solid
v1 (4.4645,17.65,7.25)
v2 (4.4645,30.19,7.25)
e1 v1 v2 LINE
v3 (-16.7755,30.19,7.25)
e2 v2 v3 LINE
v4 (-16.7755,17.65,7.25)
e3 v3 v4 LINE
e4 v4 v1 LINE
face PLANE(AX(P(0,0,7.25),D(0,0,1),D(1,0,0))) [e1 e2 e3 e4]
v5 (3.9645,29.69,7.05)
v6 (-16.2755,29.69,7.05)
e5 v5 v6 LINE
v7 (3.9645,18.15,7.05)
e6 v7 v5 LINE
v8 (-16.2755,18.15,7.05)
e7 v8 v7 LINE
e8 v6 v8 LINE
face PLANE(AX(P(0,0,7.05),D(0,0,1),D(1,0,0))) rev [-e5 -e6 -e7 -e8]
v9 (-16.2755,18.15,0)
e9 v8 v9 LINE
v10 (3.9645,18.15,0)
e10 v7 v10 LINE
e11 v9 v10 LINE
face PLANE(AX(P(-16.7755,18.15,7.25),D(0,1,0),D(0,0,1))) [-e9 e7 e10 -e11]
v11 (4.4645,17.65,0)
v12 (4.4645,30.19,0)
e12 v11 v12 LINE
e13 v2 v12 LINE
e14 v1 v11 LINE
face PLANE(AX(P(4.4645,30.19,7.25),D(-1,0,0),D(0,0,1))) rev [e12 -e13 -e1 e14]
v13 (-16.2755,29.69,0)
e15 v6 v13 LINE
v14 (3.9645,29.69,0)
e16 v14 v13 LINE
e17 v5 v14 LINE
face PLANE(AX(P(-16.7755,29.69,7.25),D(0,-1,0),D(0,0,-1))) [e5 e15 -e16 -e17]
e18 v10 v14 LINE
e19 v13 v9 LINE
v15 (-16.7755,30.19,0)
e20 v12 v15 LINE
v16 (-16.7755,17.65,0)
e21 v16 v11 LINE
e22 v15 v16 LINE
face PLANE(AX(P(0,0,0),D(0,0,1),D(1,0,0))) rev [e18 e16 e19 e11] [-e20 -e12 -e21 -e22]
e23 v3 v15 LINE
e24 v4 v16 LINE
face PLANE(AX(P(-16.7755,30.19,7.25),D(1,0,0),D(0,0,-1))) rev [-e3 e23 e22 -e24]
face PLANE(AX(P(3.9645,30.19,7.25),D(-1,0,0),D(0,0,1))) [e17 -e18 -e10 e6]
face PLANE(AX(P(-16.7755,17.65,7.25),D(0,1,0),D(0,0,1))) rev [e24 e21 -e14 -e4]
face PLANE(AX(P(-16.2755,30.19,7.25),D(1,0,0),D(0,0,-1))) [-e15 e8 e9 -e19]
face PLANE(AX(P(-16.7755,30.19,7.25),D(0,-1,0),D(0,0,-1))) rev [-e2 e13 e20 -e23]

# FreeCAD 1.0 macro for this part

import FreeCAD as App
import Part
import Sketcher
Q = App.Units.Quantity


def faces_at(feature, points):
    """Names of the faces that lie closest to the given points."""
    faces = feature.Shape.Faces
    near = lambda p: min(range(len(faces)), key=lambda i: faces[i].distToShape(Part.Vertex(*p))[0])
    return sorted({f"Face{near(p) + 1}" for p in points})


def add_polygon(sketch, points):
    """Adds a closed chain of lines whose ends are joined by coincident constraints."""
    first, n = sketch.GeometryCount, len(points)
    for a, b in zip(points, points[1:] + points[:1]):
        sketch.addGeometry(Part.LineSegment(App.Vector(*a, 0), App.Vector(*b, 0)), False)
    for i in range(n):
        sketch.addConstraint(Sketcher.Constraint("Coincident", first + i, 2, first + (i + 1) % n, 1))

doc = App.newDocument("Part")
body = doc.addObject("PartDesign::Body", "Body")

sketch1 = body.newObject("Sketcher::SketchObject", "Sketch")
sketch1.AttachmentSupport = (doc.getObject("XY_Plane"), [""])
sketch1.MapMode = "FlatFace"
add_polygon(sketch1, [(-16.7755, 30.19), (-16.7755, 17.65), (4.4645, 17.65), (4.4645, 30.19)])
sketch1.addConstraint(Sketcher.Constraint("Vertical", 0))
sketch1.addConstraint(Sketcher.Constraint("Horizontal", 1))
sketch1.addConstraint(Sketcher.Constraint("Vertical", 2))
sketch1.addConstraint(Sketcher.Constraint("Horizontal", 3))
sketch1.addConstraint(Sketcher.Constraint("DistanceX", 1, 1, 1, 2, Q("21.24 mm")))
sketch1.addConstraint(Sketcher.Constraint("DistanceY", 0, 2, 0, 1, Q("12.54 mm")))
sketch1.addConstraint(Sketcher.Constraint("DistanceY", -1, 1, 0, 2, Q("17.65 mm")))
sketch1.addConstraint(Sketcher.Constraint("DistanceX", 0, 2, -1, 1, Q("16.7755 mm")))
pad1 = body.newObject("PartDesign::Pad", "Pad")
pad1.Profile = sketch1
pad1.Length = 7.25
doc.recompute()

thickness = body.newObject("PartDesign::Thickness", "Thickness")
thickness.Base = (pad1, faces_at(pad1, [(-6.155, 23.92, 0)]))
thickness.Value = 0.5
thickness.Reversed = True
thickness.Join = "Intersection"

sketch2 = body.newObject("Sketcher::SketchObject", "Sketch001")
sketch2.AttachmentSupport = (doc.getObject("XY_Plane"), [""])
sketch2.MapMode = "FlatFace"
sketch2.AttachmentOffset = App.Placement(App.Vector(0, 0, 6.75), App.Rotation())
add_polygon(sketch2, [(-16.2755, 29.69), (-16.2755, 18.15), (3.9645, 18.15), (3.9645, 29.69)])
sketch2.addConstraint(Sketcher.Constraint("Vertical", 0))
sketch2.addConstraint(Sketcher.Constraint("Horizontal", 1))
sketch2.addConstraint(Sketcher.Constraint("Vertical", 2))
sketch2.addConstraint(Sketcher.Constraint("Horizontal", 3))
sketch2.addConstraint(Sketcher.Constraint("DistanceX", 1, 1, 1, 2, Q("20.24 mm")))
sketch2.addConstraint(Sketcher.Constraint("DistanceY", 0, 2, 0, 1, Q("11.54 mm")))
sketch2.addConstraint(Sketcher.Constraint("DistanceY", -1, 1, 0, 2, Q("18.15 mm")))
sketch2.addConstraint(Sketcher.Constraint("DistanceX", 0, 2, -1, 1, Q("16.2755 mm")))
pocket1 = body.newObject("PartDesign::Pocket", "Pocket")
pocket1.Profile = sketch2
pocket1.Length = 0.3
pocket1.Reversed = True

doc.recompute()
